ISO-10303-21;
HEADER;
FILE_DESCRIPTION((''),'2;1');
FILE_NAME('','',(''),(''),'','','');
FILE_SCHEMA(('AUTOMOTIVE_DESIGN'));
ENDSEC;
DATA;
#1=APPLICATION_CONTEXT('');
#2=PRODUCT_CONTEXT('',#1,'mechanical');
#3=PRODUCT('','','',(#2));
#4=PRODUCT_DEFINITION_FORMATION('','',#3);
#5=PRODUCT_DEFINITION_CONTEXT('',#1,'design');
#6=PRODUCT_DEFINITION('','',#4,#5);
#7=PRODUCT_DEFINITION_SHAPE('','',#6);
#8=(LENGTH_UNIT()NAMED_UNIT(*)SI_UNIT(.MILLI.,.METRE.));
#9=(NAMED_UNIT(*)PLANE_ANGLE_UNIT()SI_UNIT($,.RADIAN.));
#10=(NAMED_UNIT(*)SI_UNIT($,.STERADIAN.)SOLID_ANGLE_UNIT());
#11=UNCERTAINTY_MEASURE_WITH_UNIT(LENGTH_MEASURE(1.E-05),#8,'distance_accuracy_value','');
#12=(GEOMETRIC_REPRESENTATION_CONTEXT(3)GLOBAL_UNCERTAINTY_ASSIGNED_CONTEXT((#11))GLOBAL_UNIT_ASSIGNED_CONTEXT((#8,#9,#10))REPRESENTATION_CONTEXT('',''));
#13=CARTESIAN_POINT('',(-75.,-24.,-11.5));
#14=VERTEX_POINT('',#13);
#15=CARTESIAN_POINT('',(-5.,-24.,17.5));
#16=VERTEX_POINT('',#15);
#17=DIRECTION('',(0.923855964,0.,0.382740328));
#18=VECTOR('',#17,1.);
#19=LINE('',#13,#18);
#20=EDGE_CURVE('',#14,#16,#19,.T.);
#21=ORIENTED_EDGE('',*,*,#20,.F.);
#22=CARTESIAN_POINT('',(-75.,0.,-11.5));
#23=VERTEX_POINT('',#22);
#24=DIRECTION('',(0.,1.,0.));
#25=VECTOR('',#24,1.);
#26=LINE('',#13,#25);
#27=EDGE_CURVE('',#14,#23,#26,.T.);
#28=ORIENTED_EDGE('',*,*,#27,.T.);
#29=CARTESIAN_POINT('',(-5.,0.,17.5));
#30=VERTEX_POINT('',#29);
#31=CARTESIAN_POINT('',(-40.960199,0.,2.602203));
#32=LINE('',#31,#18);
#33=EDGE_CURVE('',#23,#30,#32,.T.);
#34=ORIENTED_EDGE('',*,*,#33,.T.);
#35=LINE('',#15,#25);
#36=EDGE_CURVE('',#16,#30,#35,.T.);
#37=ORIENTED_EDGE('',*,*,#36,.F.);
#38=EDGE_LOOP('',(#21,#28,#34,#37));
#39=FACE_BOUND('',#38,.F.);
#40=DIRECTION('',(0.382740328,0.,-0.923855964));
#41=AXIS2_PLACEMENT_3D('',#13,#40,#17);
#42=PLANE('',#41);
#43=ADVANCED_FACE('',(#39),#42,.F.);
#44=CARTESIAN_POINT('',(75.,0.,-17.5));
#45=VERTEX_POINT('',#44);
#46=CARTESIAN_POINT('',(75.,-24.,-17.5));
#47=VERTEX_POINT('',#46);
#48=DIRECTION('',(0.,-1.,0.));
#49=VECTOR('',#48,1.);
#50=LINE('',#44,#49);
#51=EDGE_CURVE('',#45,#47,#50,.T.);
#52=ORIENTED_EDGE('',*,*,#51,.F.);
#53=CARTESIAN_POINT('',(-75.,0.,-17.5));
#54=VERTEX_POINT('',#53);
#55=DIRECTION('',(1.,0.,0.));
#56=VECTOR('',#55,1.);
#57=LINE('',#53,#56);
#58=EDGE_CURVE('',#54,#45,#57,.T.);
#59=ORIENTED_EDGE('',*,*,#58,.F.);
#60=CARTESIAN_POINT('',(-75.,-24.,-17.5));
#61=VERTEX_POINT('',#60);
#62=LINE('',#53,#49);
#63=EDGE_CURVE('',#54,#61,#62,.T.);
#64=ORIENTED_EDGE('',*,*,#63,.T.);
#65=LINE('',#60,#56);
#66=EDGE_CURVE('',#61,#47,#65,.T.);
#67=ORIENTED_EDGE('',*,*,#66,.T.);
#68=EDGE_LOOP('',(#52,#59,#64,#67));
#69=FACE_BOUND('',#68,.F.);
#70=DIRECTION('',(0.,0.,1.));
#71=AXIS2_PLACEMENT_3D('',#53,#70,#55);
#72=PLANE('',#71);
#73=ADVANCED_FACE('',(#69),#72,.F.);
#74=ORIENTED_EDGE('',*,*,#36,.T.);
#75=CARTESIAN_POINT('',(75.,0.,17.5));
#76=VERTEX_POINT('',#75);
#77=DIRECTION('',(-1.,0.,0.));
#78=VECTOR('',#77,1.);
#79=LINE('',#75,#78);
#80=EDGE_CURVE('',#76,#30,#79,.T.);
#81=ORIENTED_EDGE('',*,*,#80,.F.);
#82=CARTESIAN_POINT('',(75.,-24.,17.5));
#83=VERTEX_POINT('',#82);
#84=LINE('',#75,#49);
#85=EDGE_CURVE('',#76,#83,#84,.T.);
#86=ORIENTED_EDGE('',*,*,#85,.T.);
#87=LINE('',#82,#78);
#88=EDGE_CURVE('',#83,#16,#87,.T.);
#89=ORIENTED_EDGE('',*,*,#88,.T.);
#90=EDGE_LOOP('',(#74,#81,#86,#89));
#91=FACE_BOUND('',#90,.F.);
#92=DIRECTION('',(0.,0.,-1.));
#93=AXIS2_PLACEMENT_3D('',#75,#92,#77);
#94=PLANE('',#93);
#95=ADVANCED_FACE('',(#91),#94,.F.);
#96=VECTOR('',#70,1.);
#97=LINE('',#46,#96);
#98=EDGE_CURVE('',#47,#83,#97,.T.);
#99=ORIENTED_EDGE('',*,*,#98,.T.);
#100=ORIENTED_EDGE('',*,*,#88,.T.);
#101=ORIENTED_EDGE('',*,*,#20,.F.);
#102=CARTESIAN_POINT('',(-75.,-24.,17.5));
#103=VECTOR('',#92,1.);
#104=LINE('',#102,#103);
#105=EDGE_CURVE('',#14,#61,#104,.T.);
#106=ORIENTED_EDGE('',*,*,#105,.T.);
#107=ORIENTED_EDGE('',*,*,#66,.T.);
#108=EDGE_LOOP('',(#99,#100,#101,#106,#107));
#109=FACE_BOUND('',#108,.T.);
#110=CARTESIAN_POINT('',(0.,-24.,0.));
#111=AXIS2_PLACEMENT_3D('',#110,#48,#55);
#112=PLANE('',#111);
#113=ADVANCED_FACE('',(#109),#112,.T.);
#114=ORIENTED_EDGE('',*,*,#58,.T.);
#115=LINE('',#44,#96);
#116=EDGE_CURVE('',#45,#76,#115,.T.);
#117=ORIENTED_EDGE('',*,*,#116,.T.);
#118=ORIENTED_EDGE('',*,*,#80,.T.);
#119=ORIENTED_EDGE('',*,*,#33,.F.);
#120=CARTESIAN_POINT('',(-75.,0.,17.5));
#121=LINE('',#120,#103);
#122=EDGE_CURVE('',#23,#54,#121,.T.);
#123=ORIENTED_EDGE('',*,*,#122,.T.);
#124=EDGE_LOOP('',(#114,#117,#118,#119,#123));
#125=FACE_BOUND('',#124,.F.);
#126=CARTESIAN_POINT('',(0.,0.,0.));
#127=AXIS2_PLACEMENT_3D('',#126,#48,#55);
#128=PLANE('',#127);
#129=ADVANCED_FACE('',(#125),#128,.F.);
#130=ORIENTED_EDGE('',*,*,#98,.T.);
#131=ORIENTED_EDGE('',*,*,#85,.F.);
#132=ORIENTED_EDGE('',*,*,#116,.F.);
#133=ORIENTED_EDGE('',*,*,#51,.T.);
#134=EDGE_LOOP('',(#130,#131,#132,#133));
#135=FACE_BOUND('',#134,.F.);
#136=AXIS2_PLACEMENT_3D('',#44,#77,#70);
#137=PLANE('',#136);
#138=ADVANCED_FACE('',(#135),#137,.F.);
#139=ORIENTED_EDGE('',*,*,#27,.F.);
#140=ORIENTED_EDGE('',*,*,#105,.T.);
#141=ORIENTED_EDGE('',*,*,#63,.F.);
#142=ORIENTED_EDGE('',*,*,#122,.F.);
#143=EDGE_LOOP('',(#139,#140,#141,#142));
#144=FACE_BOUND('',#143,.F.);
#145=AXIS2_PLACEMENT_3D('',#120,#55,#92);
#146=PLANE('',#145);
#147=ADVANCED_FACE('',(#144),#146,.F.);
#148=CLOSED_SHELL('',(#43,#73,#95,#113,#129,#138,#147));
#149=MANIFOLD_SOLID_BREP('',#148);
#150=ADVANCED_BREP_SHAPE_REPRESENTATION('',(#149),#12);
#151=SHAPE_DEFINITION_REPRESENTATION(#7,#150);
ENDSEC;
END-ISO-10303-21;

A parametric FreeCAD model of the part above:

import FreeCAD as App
import Part
import Sketcher

V = App.Vector

doc = App.newDocument("Part")
body = doc.addObject("PartDesign::Body", "Body")

# Sketch on XZ plane
sketch1 = body.newObject("Sketcher::SketchObject", "Sketch")
sketch1.AttachmentSupport = (doc.getObject("XZ_Plane"), [""])
sketch1.MapMode = "FlatFace"
sketch1.addGeometry([
    Part.LineSegment(V(75, 17.5, 0), V(-75, 17.5, 0)),
    Part.LineSegment(V(-75, 17.5, 0), V(-75, -17.5, 0)),
    Part.LineSegment(V(-75, -17.5, 0), V(75, -17.5, 0)),
    Part.LineSegment(V(75, -17.5, 0), V(75, 17.5, 0)),
], False)
sketch1.addConstraint([
    Sketcher.Constraint("Coincident", 0, 2, 1, 1),
    Sketcher.Constraint("Coincident", 1, 2, 2, 1),
    Sketcher.Constraint("Coincident", 2, 2, 3, 1),
    Sketcher.Constraint("Coincident", 3, 2, 0, 1),
    Sketcher.Constraint("Horizontal", 0),
    Sketcher.Constraint("Vertical", 1),
    Sketcher.Constraint("Horizontal", 2),
    Sketcher.Constraint("Vertical", 3),
    Sketcher.Constraint("Symmetric", 0, 2, 2, 2, -1, 1),
    Sketcher.Constraint("DistanceX", 0, 2, 0, 1, 150.0),
    Sketcher.Constraint("DistanceY", 1, 2, 1, 1, 35.0),
])
pad1 = body.newObject("PartDesign::Pad", "Pad")
pad1.Profile = sketch1
pad1.Length = 24

# Sketch on XZ plane
sketch2 = body.newObject("Sketcher::SketchObject", "Sketch001")
sketch2.AttachmentSupport = (doc.getObject("XZ_Plane"), [""])
sketch2.MapMode = "FlatFace"
sketch2.AttachmentOffset = App.Placement(V(0, 0, 24), App.Rotation())
sketch2.addGeometry([
    Part.LineSegment(V(-5, 17.5, 0), V(-75, 17.5, 0)),
    Part.LineSegment(V(-75, 17.5, 0), V(-75, -11.5, 0)),
    Part.LineSegment(V(-75, -11.5, 0), V(-5, 17.5, 0)),
], False)
sketch2.addConstraint([
    Sketcher.Constraint("Coincident", 0, 2, 1, 1),
    Sketcher.Constraint("Coincident", 1, 2, 2, 1),
    Sketcher.Constraint("Coincident", 2, 2, 0, 1),
    Sketcher.Constraint("Horizontal", 0),
    Sketcher.Constraint("Vertical", 1),
    Sketcher.Constraint("DistanceX", 0, 2, 0, 1, 70.0),
    Sketcher.Constraint("DistanceY", 1, 2, 1, 1, 29.0),
    Sketcher.Constraint("DistanceX", 0, 2, -1, 1, 75.0),
    Sketcher.Constraint("DistanceY", -1, 1, 0, 2, 17.5),
])
pocket1 = body.newObject("PartDesign::Pocket", "Pocket")
pocket1.Profile = sketch2
pocket1.Length = 25

doc.recompute()
